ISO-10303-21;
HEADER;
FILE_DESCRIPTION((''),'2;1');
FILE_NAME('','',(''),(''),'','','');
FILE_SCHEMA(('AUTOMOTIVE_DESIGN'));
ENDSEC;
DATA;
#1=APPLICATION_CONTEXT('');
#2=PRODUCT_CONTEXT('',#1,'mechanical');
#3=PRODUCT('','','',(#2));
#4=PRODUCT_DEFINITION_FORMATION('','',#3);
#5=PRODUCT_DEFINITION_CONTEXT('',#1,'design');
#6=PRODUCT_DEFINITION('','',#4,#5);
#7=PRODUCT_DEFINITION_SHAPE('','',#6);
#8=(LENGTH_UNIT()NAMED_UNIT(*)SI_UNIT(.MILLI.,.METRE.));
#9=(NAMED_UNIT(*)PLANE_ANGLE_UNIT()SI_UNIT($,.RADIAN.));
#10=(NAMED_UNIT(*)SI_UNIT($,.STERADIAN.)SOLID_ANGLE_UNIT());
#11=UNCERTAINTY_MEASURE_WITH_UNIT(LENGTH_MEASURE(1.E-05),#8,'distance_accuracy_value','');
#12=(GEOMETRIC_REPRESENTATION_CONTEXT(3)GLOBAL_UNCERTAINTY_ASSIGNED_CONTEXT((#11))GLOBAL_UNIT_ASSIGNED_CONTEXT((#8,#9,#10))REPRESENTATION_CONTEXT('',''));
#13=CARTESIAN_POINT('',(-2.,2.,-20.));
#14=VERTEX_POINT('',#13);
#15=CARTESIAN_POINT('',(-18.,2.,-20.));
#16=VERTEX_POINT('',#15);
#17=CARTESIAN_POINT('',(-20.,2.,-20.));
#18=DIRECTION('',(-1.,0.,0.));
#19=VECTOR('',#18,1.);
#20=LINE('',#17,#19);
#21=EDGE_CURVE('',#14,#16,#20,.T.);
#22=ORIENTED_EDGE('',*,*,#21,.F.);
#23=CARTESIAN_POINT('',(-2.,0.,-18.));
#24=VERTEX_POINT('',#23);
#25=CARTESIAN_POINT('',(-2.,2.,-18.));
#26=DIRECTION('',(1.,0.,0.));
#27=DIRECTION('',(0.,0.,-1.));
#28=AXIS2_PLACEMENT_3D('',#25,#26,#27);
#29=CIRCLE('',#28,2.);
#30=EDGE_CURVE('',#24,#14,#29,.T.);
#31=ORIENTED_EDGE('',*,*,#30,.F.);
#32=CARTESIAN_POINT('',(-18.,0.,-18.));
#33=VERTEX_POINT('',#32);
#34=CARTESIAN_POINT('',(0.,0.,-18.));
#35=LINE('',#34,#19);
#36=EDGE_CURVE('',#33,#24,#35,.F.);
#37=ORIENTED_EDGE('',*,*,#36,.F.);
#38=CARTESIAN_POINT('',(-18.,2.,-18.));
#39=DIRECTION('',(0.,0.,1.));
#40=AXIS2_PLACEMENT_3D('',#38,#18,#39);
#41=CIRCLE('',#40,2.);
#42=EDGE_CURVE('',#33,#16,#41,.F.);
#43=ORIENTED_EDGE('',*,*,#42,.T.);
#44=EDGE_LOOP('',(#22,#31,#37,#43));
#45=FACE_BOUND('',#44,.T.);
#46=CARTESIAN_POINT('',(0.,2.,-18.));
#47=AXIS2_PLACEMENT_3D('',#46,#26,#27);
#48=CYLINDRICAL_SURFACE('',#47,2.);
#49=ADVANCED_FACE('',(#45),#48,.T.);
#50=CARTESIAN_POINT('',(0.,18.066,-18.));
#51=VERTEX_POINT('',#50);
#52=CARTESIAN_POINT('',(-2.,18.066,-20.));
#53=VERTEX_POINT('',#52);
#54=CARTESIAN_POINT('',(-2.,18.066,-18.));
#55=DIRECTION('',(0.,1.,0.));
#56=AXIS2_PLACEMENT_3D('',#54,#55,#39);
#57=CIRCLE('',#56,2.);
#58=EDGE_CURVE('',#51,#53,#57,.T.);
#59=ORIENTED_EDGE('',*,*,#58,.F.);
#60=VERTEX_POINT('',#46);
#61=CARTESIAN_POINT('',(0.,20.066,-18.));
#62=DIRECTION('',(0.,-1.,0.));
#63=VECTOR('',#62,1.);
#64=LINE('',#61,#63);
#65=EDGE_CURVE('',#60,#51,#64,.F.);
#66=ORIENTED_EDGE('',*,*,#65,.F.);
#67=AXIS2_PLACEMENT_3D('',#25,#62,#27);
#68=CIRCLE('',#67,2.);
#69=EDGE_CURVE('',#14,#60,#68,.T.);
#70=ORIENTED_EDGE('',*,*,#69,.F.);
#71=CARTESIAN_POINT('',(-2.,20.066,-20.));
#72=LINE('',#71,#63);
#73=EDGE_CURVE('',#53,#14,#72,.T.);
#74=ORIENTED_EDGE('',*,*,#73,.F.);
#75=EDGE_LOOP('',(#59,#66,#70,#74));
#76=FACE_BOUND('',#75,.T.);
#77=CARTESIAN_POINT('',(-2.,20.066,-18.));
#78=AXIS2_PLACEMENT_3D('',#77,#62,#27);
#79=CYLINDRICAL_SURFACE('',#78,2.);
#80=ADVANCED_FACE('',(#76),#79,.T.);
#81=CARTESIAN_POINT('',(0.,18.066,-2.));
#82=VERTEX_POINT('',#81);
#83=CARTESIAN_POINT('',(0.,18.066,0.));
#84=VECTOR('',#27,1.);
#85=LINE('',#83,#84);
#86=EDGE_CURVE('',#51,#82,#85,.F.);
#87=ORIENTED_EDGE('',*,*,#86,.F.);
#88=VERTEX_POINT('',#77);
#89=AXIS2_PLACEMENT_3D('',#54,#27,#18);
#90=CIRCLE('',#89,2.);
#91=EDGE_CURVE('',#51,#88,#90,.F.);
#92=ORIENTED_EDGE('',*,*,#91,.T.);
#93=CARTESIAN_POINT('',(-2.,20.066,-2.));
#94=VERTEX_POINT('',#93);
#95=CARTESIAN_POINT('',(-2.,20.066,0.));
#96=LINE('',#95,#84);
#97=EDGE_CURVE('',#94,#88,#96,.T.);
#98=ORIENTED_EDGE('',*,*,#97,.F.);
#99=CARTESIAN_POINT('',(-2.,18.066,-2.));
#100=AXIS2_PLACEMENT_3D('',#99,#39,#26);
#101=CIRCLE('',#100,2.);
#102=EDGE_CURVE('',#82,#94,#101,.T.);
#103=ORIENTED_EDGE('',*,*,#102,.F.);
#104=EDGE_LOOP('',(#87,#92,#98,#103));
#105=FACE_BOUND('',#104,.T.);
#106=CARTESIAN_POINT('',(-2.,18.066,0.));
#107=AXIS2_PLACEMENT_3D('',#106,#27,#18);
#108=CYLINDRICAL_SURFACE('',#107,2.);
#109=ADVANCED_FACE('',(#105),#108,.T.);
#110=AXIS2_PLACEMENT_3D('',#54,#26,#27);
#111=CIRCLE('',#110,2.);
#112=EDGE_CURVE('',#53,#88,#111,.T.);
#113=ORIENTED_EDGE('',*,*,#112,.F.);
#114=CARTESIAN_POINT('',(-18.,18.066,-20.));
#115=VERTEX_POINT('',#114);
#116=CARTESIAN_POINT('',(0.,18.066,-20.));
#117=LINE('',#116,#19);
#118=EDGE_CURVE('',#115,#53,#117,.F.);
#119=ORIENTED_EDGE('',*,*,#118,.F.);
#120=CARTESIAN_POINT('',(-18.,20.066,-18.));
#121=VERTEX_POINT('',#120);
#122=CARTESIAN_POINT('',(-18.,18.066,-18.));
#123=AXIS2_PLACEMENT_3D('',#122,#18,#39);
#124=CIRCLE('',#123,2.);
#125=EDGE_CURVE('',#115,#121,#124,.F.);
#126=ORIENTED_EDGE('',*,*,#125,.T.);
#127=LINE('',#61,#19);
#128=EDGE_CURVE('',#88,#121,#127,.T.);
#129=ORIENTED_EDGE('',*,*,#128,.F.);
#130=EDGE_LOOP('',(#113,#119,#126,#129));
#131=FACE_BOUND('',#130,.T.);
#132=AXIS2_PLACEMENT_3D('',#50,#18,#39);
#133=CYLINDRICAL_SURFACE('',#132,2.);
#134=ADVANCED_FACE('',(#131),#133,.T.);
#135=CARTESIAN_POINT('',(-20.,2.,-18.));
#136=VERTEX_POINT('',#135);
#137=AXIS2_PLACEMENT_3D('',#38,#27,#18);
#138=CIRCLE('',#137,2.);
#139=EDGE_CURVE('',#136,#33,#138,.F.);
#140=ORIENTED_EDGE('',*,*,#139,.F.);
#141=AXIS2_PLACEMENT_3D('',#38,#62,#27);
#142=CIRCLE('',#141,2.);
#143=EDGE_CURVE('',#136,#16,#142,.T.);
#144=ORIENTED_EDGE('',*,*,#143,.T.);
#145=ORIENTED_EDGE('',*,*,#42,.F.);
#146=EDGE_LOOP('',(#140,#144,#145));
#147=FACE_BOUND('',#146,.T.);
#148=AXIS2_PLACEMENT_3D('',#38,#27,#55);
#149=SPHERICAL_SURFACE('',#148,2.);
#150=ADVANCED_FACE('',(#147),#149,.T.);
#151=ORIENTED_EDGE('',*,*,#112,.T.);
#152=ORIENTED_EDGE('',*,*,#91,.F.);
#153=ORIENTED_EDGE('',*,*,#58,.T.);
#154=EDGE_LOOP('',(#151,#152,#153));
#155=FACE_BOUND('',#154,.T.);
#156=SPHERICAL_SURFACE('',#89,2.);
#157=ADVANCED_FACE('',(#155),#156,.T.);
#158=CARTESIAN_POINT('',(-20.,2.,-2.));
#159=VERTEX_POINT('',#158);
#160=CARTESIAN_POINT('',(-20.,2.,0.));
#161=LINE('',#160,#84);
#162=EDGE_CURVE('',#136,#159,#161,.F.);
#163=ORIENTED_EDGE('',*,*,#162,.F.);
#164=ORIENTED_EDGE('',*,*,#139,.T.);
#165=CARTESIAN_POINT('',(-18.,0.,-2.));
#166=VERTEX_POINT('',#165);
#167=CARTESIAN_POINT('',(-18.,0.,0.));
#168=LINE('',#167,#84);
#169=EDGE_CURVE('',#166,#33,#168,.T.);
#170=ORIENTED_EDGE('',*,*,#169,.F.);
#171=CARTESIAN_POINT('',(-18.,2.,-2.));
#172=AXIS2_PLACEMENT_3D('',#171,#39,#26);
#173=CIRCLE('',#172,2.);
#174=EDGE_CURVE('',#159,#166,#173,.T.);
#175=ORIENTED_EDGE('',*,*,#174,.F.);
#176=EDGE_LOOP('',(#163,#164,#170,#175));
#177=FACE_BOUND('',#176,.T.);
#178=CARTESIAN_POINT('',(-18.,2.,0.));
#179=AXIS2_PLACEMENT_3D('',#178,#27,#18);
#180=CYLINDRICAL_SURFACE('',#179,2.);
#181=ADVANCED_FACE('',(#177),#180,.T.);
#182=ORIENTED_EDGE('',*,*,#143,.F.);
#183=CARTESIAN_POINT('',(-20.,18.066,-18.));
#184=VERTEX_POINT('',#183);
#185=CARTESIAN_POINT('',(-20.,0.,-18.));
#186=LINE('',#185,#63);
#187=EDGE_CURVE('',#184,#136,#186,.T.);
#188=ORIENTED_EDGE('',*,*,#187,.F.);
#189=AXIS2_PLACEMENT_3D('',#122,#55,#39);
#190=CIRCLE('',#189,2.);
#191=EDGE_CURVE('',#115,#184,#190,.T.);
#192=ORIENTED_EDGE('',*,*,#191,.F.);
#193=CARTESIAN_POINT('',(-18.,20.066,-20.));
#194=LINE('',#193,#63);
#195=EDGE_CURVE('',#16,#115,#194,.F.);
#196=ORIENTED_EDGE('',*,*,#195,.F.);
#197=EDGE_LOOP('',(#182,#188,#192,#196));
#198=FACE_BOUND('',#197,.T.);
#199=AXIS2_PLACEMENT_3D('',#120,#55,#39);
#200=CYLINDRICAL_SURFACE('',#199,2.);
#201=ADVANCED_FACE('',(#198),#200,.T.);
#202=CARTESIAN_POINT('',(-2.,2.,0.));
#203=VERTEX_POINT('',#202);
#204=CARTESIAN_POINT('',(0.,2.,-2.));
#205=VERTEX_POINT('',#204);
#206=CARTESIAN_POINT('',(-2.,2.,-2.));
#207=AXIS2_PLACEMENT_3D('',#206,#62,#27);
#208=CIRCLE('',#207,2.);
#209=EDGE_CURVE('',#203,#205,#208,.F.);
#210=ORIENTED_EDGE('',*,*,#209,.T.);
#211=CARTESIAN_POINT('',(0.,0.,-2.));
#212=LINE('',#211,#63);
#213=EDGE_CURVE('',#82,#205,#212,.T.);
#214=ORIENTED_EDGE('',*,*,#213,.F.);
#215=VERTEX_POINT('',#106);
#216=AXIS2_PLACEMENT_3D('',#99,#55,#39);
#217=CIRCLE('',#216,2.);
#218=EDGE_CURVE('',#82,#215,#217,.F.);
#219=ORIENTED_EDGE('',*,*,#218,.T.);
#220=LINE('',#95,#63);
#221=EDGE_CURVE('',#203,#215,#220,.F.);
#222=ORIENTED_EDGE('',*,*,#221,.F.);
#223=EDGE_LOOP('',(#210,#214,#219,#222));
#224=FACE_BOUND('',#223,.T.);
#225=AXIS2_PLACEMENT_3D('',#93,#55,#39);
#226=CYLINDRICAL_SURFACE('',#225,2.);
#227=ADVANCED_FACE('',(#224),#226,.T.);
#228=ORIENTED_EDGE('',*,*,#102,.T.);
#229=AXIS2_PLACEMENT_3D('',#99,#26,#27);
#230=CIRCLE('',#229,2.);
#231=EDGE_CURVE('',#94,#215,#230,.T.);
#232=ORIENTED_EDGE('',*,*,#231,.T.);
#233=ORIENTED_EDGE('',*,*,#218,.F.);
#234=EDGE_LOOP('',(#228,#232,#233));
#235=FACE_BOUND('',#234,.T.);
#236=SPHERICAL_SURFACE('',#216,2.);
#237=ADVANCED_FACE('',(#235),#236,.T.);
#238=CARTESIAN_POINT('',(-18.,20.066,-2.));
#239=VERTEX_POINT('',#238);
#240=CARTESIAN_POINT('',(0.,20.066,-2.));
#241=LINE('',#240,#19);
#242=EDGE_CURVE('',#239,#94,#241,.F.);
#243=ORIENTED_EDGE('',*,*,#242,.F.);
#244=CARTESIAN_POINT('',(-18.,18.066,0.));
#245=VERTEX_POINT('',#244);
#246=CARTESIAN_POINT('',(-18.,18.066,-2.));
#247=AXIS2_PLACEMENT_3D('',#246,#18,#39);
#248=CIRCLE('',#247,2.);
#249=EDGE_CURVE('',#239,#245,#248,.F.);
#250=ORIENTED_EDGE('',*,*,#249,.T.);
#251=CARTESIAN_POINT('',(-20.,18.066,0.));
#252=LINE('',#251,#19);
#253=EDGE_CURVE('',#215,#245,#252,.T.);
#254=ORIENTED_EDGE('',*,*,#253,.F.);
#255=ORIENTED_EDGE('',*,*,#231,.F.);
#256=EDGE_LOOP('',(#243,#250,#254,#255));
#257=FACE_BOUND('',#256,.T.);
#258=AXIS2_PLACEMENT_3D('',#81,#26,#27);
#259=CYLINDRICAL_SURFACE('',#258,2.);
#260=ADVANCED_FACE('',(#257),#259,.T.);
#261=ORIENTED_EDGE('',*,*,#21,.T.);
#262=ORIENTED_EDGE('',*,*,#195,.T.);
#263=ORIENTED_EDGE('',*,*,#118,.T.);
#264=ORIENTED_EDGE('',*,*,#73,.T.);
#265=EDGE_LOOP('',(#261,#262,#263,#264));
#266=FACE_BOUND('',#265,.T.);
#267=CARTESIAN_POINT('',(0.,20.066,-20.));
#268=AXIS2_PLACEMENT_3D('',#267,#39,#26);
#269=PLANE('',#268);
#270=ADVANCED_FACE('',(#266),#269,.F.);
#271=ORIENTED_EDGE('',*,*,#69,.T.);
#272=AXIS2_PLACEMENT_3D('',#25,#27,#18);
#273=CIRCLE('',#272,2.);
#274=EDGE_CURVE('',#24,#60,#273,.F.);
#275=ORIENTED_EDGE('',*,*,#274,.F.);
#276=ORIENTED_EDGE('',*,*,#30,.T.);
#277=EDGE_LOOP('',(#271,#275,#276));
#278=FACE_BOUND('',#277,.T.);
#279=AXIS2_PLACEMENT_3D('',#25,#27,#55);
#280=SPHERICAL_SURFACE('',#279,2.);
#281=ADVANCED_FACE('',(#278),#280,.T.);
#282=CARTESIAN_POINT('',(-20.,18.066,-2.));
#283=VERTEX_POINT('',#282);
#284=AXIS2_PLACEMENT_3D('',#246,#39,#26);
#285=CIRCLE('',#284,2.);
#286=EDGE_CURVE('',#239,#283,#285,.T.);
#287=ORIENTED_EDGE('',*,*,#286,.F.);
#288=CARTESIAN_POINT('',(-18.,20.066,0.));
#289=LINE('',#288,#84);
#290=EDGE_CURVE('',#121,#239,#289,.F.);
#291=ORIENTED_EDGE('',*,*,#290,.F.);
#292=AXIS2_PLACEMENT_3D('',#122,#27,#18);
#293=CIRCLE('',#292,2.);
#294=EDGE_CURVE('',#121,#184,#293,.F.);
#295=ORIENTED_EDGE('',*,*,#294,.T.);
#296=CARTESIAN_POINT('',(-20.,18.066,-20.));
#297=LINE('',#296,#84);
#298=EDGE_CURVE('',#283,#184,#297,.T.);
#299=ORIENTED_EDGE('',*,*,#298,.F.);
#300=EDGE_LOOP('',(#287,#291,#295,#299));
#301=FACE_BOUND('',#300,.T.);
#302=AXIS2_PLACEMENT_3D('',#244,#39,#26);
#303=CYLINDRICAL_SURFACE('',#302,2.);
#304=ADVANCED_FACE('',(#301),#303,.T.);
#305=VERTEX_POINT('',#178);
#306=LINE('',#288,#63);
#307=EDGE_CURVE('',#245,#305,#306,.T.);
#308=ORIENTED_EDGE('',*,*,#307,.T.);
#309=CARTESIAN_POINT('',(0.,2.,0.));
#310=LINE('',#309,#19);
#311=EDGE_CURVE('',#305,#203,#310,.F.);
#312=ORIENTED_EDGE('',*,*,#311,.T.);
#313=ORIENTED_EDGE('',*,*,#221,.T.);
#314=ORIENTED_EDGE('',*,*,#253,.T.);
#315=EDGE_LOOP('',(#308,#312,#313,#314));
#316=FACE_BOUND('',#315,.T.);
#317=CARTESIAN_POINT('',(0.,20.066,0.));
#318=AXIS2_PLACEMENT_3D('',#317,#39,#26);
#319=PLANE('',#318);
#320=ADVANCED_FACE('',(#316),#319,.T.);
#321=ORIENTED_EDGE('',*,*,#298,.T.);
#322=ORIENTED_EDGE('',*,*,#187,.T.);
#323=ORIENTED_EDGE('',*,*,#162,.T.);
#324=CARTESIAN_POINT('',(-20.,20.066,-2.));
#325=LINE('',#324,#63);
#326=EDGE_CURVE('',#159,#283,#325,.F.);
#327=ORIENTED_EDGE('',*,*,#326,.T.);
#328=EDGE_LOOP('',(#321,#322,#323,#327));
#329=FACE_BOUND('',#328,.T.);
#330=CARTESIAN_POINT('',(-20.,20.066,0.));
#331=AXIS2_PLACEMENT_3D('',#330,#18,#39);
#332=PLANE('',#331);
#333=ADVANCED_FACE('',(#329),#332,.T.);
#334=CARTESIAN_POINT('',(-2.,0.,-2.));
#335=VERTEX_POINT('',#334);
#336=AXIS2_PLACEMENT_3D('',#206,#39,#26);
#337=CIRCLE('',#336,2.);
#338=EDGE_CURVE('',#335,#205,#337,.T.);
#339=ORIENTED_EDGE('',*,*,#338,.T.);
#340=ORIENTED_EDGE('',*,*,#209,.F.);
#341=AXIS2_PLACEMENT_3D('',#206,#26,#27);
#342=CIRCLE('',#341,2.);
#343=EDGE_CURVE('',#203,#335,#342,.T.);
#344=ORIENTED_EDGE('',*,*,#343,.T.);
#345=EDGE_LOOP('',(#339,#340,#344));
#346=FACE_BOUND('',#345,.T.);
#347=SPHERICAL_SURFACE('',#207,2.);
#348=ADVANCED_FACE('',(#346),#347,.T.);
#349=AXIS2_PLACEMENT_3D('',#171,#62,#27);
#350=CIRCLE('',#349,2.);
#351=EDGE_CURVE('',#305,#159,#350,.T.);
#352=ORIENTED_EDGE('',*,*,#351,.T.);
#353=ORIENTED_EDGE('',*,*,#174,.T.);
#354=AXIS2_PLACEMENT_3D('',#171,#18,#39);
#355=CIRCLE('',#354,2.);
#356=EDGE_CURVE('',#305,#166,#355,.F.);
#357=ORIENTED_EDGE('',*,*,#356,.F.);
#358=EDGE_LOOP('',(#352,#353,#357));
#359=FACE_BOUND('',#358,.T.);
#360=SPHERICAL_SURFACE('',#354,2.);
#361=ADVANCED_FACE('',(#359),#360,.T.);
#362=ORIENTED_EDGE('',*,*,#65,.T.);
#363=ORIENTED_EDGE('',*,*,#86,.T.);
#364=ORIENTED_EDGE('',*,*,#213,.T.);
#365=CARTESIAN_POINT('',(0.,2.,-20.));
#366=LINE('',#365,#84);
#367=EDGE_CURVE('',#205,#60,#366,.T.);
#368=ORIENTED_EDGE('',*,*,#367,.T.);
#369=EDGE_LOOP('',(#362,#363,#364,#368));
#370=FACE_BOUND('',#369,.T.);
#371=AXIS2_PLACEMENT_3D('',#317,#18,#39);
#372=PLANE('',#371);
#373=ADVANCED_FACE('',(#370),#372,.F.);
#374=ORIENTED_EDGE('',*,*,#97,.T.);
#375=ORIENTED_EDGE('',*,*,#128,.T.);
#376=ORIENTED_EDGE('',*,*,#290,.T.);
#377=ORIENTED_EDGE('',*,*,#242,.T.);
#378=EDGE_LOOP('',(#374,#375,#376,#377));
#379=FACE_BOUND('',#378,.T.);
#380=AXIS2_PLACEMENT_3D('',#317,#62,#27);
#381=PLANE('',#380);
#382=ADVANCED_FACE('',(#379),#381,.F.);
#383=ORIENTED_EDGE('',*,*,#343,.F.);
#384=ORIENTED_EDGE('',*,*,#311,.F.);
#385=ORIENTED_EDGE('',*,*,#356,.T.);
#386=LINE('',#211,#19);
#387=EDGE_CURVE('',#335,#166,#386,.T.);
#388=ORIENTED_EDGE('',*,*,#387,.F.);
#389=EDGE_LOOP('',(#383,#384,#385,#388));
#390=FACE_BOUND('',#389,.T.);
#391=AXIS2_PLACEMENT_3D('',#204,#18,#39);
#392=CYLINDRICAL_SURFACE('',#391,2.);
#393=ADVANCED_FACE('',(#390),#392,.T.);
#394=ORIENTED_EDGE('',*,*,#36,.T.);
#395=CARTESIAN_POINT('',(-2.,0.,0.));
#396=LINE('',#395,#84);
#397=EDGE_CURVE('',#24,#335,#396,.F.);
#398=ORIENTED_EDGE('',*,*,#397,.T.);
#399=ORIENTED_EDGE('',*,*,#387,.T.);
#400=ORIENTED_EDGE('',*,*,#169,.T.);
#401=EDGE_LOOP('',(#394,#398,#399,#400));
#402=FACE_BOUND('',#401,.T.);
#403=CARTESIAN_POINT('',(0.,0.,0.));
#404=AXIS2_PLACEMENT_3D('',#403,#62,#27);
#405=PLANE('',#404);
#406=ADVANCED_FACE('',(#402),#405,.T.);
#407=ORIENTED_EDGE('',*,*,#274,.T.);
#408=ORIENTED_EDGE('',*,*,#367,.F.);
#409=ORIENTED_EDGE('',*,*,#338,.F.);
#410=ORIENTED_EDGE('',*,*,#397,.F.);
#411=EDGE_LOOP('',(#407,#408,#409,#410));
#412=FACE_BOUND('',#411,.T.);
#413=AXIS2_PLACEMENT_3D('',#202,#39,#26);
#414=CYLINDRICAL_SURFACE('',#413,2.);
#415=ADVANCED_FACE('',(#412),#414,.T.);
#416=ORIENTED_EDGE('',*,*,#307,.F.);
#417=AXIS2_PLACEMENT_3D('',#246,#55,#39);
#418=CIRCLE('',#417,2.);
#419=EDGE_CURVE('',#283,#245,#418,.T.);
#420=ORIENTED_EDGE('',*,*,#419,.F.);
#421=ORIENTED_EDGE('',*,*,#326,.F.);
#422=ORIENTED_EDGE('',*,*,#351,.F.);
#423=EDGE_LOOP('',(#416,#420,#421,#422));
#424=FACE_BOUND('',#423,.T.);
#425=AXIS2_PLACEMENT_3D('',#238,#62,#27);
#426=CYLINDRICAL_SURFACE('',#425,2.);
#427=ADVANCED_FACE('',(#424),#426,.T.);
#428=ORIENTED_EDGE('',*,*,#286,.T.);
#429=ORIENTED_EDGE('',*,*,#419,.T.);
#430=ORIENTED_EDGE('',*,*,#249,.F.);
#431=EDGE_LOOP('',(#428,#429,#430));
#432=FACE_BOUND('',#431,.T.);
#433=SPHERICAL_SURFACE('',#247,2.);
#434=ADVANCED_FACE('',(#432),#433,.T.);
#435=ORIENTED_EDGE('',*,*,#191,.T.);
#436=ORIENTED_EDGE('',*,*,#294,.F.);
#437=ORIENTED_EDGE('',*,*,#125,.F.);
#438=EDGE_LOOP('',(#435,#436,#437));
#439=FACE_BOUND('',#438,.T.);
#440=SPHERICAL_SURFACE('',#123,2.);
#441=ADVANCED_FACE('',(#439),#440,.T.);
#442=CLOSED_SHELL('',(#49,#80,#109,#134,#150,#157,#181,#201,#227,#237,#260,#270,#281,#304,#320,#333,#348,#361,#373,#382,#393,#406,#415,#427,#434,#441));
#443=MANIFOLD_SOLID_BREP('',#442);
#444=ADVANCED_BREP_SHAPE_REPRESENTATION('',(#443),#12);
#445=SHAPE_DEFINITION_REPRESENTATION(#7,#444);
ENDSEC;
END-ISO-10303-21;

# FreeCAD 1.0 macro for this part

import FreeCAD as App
import Part
import Sketcher
from FreeCAD import Vector
Q = App.Units.Quantity

doc = App.newDocument("Part")
body = doc.addObject("PartDesign::Body", "Body")

# Sketch on XZ plane
sketch1 = doc.addObject("Sketcher::SketchObject", "Sketch")
body.addObject(sketch1)
sketch1.AttachmentSupport = (doc.XZ_Plane, [""])
sketch1.MapMode = "FlatFace"
sketch1.addGeometry([
    Part.LineSegment(Vector(-20, -20, 0), Vector(-20, 0, 0)),
    Part.LineSegment(Vector(-20, 0, 0), Vector(0, 0, 0)),
    Part.LineSegment(Vector(0, 0, 0), Vector(0, -20, 0)),
    Part.LineSegment(Vector(0, -20, 0), Vector(-20, -20, 0)),
], False)
sketch1.addConstraint([
    Sketcher.Constraint("Coincident", 0, 2, 1, 1),
    Sketcher.Constraint("Coincident", 1, 2, 2, 1),
    Sketcher.Constraint("Coincident", 2, 2, 3, 1),
    Sketcher.Constraint("Coincident", 3, 2, 0, 1),
    Sketcher.Constraint("Vertical", 0),
    Sketcher.Constraint("Horizontal", 1),
    Sketcher.Constraint("Vertical", 2),
    Sketcher.Constraint("Horizontal", 3),
    Sketcher.Constraint("Coincident", 1, 2, -1, 1),
    Sketcher.Constraint("Equal", 3, 0),
    Sketcher.Constraint("DistanceX", 1, 1, 1, 2, Q("20 mm")),
])
pad1 = doc.addObject("PartDesign::Pad", "Pad")
body.addObject(pad1)
pad1.Profile = sketch1
pad1.Length = 20.066
pad1.Reversed = True
doc.recompute()

fillet = doc.addObject("PartDesign::Fillet", "Fillet")
body.addObject(fillet)
fillet.Base = (pad1, ["Edge1"])
fillet.UseAllEdges = True
fillet.Radius = 2

doc.recompute()
